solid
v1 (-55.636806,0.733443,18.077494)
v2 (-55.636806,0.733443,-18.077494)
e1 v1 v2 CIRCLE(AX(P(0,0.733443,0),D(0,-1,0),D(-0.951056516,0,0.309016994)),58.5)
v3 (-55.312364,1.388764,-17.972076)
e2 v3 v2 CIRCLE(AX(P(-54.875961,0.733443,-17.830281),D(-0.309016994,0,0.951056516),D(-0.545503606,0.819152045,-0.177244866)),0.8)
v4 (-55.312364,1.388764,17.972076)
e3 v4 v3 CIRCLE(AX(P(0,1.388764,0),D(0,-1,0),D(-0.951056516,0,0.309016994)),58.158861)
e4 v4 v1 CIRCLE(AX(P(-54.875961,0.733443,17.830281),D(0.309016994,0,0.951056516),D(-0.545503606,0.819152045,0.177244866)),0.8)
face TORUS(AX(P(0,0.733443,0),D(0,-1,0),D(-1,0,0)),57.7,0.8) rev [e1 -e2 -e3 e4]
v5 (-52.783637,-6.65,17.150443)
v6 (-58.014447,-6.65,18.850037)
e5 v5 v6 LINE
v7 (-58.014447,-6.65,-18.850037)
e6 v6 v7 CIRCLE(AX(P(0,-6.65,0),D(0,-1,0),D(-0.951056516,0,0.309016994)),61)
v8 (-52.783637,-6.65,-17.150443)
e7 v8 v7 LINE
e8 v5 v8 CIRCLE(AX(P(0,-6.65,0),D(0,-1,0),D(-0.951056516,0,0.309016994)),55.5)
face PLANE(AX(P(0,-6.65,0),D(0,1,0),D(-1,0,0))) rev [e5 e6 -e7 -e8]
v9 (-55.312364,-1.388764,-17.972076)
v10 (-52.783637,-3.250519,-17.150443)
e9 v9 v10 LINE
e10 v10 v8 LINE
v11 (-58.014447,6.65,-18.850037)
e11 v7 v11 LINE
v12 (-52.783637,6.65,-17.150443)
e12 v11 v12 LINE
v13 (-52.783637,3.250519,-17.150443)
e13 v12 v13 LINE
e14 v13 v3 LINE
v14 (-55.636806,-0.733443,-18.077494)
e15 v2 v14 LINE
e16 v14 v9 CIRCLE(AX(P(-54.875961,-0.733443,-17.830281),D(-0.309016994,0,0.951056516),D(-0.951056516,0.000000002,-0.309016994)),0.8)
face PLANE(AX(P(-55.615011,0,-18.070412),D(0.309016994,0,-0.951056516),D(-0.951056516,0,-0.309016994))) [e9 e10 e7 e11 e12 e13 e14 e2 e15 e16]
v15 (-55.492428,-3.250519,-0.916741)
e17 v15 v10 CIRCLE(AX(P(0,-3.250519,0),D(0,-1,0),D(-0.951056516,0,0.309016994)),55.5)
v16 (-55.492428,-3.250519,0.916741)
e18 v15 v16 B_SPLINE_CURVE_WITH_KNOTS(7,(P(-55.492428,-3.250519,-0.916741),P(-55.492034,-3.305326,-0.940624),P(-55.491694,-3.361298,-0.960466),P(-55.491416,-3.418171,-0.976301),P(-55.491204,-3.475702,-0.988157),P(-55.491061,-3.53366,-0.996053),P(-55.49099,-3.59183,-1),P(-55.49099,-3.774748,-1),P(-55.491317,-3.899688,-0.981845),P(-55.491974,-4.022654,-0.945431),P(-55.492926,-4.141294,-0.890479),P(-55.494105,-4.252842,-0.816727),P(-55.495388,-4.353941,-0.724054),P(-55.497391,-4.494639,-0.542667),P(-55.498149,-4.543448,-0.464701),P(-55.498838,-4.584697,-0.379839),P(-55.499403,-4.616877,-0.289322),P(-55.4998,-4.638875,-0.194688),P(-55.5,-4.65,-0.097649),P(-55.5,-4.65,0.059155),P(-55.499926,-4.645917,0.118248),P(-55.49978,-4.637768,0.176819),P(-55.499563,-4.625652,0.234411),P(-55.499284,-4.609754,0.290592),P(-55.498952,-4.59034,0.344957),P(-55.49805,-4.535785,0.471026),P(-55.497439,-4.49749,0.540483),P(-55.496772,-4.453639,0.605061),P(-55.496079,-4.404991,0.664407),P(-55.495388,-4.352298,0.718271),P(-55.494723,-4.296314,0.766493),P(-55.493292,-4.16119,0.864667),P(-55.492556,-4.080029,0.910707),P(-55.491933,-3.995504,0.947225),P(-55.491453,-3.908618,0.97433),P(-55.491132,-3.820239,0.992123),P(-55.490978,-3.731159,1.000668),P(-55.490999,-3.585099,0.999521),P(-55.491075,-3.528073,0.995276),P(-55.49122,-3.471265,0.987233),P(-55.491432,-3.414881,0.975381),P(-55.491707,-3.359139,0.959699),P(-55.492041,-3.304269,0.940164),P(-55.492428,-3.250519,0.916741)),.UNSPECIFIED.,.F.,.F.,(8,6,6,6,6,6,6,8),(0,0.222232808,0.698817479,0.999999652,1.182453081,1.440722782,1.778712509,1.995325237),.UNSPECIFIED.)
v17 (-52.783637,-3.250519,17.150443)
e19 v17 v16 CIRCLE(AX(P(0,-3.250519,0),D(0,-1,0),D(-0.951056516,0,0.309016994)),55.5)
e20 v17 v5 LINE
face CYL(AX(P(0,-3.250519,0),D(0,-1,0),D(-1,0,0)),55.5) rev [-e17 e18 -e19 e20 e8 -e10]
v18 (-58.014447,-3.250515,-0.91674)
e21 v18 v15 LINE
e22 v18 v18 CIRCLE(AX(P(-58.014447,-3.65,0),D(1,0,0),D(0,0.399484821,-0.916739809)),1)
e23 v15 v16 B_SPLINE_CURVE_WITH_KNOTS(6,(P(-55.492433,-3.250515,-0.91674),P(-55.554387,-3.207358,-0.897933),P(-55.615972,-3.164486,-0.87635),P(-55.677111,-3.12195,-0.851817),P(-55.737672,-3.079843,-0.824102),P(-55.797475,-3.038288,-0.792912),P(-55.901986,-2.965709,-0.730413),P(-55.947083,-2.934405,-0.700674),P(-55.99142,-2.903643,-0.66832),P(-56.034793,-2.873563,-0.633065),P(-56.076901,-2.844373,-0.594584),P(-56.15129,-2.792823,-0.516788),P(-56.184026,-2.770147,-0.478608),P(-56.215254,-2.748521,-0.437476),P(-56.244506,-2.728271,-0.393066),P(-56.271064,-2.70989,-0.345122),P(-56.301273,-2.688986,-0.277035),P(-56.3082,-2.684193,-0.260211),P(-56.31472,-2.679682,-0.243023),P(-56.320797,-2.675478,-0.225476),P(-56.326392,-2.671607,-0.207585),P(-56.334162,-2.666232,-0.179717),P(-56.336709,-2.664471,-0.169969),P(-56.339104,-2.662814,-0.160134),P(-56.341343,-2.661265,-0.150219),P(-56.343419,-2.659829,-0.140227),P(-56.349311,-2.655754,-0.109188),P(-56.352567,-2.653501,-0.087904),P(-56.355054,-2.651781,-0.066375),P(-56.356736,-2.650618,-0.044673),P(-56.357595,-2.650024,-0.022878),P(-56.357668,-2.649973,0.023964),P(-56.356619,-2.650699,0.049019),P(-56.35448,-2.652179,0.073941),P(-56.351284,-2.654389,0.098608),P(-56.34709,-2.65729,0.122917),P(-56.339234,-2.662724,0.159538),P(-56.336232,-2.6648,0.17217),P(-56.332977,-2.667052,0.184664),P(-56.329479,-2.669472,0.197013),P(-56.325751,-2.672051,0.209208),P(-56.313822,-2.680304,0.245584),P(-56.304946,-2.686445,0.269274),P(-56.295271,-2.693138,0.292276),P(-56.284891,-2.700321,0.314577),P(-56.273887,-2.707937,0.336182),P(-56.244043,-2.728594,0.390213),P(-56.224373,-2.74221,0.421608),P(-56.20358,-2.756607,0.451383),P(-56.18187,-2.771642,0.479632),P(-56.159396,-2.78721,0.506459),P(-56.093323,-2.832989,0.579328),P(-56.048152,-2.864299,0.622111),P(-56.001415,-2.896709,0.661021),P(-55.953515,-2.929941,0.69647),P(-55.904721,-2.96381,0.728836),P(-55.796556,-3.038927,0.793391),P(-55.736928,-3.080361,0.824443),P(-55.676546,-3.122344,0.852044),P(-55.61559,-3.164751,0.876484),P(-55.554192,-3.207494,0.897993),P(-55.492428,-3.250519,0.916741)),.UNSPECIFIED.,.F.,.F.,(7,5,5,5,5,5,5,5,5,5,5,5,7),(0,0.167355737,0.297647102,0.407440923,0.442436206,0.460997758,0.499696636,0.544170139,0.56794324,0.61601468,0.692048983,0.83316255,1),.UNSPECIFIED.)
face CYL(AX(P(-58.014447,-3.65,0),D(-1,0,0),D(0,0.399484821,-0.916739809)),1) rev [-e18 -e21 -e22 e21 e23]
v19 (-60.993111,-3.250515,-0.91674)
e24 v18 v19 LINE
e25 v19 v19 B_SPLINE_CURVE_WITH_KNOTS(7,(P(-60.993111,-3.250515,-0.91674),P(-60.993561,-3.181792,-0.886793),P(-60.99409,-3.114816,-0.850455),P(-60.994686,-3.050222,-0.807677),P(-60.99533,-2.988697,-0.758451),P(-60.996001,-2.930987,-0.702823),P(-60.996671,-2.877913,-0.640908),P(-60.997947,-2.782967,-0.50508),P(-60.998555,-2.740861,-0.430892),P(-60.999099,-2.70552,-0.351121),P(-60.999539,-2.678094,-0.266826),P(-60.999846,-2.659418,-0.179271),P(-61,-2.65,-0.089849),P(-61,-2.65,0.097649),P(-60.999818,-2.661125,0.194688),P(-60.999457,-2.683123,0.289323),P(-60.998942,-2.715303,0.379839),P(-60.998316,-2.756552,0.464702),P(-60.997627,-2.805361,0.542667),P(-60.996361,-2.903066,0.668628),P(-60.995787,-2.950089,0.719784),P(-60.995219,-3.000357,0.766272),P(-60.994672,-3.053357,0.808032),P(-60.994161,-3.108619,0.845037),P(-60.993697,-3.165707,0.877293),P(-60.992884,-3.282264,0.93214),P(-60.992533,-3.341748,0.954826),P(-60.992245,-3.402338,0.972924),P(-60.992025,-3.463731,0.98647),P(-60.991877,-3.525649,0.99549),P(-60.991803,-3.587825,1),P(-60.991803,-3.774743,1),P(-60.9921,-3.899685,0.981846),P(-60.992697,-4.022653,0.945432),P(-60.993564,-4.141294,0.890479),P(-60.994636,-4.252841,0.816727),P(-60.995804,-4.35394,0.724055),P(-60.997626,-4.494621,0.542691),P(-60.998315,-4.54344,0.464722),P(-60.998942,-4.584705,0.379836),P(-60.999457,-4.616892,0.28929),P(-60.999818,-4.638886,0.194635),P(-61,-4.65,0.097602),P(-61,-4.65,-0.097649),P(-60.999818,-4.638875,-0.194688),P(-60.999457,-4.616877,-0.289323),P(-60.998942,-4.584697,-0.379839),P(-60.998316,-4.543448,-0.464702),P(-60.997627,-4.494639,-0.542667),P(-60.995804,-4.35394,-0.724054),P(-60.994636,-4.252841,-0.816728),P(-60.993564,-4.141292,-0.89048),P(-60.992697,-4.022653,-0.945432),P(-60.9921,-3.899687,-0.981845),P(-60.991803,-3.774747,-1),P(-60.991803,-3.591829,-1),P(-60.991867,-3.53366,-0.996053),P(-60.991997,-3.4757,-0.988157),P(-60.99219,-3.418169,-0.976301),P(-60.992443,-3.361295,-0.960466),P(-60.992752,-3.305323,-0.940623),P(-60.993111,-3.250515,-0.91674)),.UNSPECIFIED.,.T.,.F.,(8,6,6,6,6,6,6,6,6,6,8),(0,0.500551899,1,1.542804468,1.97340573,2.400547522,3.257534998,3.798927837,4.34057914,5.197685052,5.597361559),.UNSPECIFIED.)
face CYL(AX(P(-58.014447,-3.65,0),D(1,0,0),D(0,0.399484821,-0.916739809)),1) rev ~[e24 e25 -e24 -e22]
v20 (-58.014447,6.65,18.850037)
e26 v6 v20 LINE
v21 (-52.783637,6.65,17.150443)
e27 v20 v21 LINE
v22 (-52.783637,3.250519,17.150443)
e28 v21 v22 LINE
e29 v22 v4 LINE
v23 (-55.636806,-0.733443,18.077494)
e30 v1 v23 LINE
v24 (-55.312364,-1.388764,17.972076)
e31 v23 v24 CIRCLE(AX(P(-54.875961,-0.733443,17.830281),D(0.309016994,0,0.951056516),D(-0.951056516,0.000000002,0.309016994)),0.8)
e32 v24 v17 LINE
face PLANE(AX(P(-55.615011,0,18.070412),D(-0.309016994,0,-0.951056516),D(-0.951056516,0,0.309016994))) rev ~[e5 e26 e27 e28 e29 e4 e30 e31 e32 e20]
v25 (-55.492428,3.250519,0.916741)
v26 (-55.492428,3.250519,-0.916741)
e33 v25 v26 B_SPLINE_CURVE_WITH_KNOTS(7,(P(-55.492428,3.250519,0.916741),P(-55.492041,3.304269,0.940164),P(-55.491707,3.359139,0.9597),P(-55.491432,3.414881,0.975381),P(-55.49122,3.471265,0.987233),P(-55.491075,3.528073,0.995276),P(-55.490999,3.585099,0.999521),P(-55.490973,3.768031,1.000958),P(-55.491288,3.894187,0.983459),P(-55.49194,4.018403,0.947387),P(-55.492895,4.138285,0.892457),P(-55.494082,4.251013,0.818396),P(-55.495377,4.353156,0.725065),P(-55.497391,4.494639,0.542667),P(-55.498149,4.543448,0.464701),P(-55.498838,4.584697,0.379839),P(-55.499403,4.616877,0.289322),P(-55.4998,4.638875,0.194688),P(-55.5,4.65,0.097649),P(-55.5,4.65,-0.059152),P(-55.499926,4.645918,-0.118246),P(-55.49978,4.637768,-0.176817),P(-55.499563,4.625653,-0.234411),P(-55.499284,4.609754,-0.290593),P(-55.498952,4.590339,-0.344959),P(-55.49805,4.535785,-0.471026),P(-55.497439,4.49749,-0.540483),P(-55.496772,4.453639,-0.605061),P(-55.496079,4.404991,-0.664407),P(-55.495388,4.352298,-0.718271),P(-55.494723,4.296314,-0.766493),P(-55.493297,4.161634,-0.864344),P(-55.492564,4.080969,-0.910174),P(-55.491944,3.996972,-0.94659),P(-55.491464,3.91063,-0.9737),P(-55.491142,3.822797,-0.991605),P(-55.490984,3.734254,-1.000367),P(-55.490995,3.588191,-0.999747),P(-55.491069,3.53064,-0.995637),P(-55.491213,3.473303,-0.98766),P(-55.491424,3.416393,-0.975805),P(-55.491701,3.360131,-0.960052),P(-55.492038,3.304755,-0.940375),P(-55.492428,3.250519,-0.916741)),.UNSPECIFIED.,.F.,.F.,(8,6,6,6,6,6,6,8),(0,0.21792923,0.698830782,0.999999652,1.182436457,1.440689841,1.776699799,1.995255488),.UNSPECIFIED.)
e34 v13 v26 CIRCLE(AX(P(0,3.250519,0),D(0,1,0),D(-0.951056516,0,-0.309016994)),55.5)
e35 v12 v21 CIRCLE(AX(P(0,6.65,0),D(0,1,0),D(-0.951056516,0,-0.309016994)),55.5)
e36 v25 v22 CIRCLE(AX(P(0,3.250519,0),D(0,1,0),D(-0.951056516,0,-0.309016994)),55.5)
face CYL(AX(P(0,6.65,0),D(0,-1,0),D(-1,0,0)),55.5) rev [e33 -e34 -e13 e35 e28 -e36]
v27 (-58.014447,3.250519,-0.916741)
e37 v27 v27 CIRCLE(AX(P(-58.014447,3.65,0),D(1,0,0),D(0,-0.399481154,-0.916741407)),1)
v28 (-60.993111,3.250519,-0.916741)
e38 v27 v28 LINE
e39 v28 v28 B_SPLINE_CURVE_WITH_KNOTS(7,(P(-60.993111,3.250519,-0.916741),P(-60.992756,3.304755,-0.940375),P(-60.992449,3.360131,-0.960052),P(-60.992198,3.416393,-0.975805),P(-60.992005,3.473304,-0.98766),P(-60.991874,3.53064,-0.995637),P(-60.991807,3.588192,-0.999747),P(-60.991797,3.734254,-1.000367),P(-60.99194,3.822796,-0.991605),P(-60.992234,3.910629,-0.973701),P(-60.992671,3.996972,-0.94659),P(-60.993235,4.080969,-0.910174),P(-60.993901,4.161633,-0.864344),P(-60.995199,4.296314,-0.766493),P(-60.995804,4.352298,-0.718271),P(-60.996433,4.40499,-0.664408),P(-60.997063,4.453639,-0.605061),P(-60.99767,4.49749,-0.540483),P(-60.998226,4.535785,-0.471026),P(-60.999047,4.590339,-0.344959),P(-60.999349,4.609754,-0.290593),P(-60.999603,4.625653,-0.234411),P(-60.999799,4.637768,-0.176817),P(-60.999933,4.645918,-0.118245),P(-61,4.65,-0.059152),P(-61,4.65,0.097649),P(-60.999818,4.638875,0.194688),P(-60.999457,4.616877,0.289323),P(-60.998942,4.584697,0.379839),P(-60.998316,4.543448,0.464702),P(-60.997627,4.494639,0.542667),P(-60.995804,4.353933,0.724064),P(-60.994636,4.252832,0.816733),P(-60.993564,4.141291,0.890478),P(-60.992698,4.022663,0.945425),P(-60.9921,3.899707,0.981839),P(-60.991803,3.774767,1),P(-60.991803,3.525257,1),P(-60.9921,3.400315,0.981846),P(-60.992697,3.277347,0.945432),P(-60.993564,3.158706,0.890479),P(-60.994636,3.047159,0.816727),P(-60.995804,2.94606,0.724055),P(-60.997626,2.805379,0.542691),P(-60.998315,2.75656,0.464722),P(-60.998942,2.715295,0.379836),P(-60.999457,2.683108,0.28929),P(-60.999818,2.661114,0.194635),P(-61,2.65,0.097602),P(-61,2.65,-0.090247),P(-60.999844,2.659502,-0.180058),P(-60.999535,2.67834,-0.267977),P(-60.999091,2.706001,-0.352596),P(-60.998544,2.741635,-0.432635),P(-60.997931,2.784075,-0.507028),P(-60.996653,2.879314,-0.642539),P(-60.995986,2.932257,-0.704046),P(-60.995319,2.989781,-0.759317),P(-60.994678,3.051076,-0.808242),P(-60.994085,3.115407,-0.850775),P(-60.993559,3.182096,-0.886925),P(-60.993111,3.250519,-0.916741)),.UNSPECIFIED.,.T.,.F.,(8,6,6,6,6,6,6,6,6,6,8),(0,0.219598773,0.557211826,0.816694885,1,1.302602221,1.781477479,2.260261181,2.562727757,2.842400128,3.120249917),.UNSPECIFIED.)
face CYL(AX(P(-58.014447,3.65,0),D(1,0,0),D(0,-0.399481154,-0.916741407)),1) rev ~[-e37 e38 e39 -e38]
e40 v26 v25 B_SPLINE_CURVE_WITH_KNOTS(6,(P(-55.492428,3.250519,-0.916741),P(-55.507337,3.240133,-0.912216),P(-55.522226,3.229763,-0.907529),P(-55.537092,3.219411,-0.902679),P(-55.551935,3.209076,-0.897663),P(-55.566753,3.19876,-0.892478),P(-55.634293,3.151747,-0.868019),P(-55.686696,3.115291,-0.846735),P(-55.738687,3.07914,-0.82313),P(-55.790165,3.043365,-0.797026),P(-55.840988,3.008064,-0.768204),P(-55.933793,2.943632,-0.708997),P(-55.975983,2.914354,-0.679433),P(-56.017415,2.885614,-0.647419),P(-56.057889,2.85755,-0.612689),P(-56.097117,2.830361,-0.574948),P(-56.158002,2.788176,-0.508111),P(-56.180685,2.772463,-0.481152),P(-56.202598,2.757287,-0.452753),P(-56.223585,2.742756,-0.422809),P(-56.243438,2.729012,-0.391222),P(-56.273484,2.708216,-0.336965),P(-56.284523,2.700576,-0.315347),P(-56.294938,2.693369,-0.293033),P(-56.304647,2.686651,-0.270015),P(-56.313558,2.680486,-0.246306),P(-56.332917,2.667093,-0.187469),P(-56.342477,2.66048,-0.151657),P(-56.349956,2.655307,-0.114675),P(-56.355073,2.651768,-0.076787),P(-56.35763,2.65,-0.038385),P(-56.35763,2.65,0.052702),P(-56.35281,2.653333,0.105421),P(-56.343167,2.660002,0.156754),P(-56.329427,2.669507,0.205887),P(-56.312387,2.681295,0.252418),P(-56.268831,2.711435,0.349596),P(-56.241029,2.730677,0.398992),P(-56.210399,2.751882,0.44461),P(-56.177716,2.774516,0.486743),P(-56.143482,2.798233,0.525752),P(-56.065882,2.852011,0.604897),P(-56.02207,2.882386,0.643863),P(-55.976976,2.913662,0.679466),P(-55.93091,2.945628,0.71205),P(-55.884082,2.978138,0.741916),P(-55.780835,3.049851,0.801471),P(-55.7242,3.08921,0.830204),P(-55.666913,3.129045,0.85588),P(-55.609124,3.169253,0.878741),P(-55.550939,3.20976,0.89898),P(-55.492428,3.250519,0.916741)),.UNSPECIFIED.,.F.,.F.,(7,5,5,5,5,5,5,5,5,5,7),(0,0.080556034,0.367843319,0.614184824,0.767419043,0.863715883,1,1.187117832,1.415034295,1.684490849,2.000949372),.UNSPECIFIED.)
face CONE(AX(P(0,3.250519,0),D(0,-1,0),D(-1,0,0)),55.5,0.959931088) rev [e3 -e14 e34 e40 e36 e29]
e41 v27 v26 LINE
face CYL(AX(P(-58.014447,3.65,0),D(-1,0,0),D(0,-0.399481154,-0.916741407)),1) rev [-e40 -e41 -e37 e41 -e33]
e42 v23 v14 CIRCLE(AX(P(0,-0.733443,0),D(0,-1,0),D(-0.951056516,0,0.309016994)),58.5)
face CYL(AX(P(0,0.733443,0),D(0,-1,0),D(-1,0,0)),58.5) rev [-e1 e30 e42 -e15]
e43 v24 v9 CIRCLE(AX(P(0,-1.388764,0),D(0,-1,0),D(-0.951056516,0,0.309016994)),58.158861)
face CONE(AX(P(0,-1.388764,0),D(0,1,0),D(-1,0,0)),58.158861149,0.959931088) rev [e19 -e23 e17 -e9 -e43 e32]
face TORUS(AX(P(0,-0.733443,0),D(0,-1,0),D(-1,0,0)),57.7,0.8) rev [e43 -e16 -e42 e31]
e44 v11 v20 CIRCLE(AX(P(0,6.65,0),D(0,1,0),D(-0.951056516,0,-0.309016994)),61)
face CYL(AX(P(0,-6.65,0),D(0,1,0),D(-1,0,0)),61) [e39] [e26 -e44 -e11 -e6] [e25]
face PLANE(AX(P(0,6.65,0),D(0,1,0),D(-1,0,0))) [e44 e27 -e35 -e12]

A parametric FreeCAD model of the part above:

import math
import FreeCAD as App
import Part
import Sketcher

V = App.Vector
Q = App.Units.Quantity

doc = App.newDocument("Part")
body = doc.addObject("PartDesign::Body", "Body")

# Sketch on XY plane
sketch1 = doc.addObject("Sketcher::SketchObject", "Sketch")
body.addObject(sketch1)
sketch1.AttachmentSupport = (doc.XY_Plane, [""])
sketch1.MapMode = "FlatFace"
sketch1.addGeometry([
    Part.LineSegment(V(-58.2, 1.4, 0), V(-55.5, 3.3, 0)),  # 0
    Part.LineSegment(V(-55.5, 3.3, 0), V(-55.5, 6.7, 0)),  # 1
    Part.LineSegment(V(-55.5, 6.7, 0), V(-61, 6.7, 0)),  # 2
    Part.LineSegment(V(-61, 6.7, 0), V(-61, -6.7, 0)),  # 3
    Part.LineSegment(V(-61, -6.7, 0), V(-55.5, -6.7, 0)),  # 4
    Part.LineSegment(V(-55.5, -6.7, 0), V(-55.5, -3.3, 0)),  # 5
    Part.LineSegment(V(-55.5, -3.3, 0), V(-58.2, -1.4, 0)),  # 6
    Part.ArcOfCircle(Part.Circle(V(-57.7, -0.7, 0), V(0, 0, 1), 0.8), math.radians(180), math.radians(235)),  # 7
    Part.LineSegment(V(-58.5, -0.7, 0), V(-58.5, 0.7, 0)),  # 8
    Part.ArcOfCircle(Part.Circle(V(-57.7, 0.7, 0), V(0, 0, 1), 0.8), math.radians(125), math.radians(180)),  # 9
], False)
sketch1.addConstraint([
    Sketcher.Constraint("Coincident", 0, 2, 1, 1),
    Sketcher.Constraint("Coincident", 1, 2, 2, 1),
    Sketcher.Constraint("Coincident", 2, 2, 3, 1),
    Sketcher.Constraint("Coincident", 3, 2, 4, 1),
    Sketcher.Constraint("Coincident", 4, 2, 5, 1),
    Sketcher.Constraint("Coincident", 5, 2, 6, 1),
    Sketcher.Constraint("Tangent", 6, 2, 7, 2),
    Sketcher.Constraint("Tangent", 7, 1, 8, 1),
    Sketcher.Constraint("Tangent", 8, 2, 9, 2),
    Sketcher.Constraint("Tangent", 9, 1, 0, 1),
    Sketcher.Constraint("Vertical", 1),
    Sketcher.Constraint("Horizontal", 2),
    Sketcher.Constraint("Vertical", 3),
    Sketcher.Constraint("Horizontal", 4),
    Sketcher.Constraint("Vertical", 5),
    Sketcher.Constraint("Vertical", 8),
    Sketcher.Constraint("Equal", 7, 9),
    Sketcher.Constraint("Symmetric", 1, 2, 4, 2, -1),
    Sketcher.Constraint("Symmetric", 6, 2, 9, 1, -1),
    Sketcher.Constraint("Radius", 7, 0.8),
    Sketcher.Constraint("Angle", 0, Q("35 deg")),
    Sketcher.Constraint("DistanceX", 2, 2, 2, 1, 5.5),
    Sketcher.Constraint("DistanceY", 3, 2, 3, 1, 13.3),
    Sketcher.Constraint("DistanceX", 2, 2, -1, 1, 61.0),
    Sketcher.Constraint("DistanceX", 7, 1, 5, 2, 3.0),
    Sketcher.Constraint("DistanceY", 1, 1, 1, 2, 3.399481),
])
revolution = doc.addObject("PartDesign::Revolution", "Revolution")
body.addObject(revolution)
revolution.Profile = sketch1
revolution.ReferenceAxis = (sketch1, ["V_Axis"])
revolution.Angle = 18
revolution.Reversed = True

# Sketch on XY plane
sketch2 = doc.addObject("Sketcher::SketchObject", "Sketch001")
body.addObject(sketch2)
sketch2.AttachmentSupport = (doc.XY_Plane, [""])
sketch2.MapMode = "FlatFace"
sketch2.addGeometry([
    Part.LineSegment(V(-58.2, 1.4, 0), V(-55.5, 3.3, 0)),  # 0
    Part.LineSegment(V(-55.5, 3.3, 0), V(-55.5, 6.7, 0)),  # 1
    Part.LineSegment(V(-55.5, 6.7, 0), V(-61, 6.7, 0)),  # 2
    Part.LineSegment(V(-61, 6.7, 0), V(-61, -6.7, 0)),  # 3
    Part.LineSegment(V(-61, -6.7, 0), V(-55.5, -6.7, 0)),  # 4
    Part.LineSegment(V(-55.5, -6.7, 0), V(-55.5, -3.3, 0)),  # 5
    Part.LineSegment(V(-55.5, -3.3, 0), V(-58.2, -1.4, 0)),  # 6
    Part.ArcOfCircle(Part.Circle(V(-57.7, -0.7, 0), V(0, 0, 1), 0.8), math.radians(180), math.radians(235)),  # 7
    Part.LineSegment(V(-58.5, -0.7, 0), V(-58.5, 0.7, 0)),  # 8
    Part.ArcOfCircle(Part.Circle(V(-57.7, 0.7, 0), V(0, 0, 1), 0.8), math.radians(125), math.radians(180)),  # 9
], False)
sketch2.addConstraint([
    Sketcher.Constraint("Coincident", 0, 2, 1, 1),
    Sketcher.Constraint("Coincident", 1, 2, 2, 1),
    Sketcher.Constraint("Coincident", 2, 2, 3, 1),
    Sketcher.Constraint("Coincident", 3, 2, 4, 1),
    Sketcher.Constraint("Coincident", 4, 2, 5, 1),
    Sketcher.Constraint("Coincident", 5, 2, 6, 1),
    Sketcher.Constraint("Tangent", 6, 2, 7, 2),
    Sketcher.Constraint("Tangent", 7, 1, 8, 1),
    Sketcher.Constraint("Tangent", 8, 2, 9, 2),
    Sketcher.Constraint("Tangent", 9, 1, 0, 1),
    Sketcher.Constraint("Vertical", 1),
    Sketcher.Constraint("Horizontal", 2),
    Sketcher.Constraint("Vertical", 3),
    Sketcher.Constraint("Horizontal", 4),
    Sketcher.Constraint("Vertical", 5),
    Sketcher.Constraint("Vertical", 8),
    Sketcher.Constraint("Equal", 7, 9),
    Sketcher.Constraint("Symmetric", 1, 2, 4, 2, -1),
    Sketcher.Constraint("Symmetric", 6, 2, 9, 1, -1),
    Sketcher.Constraint("Radius", 7, 0.8),
    Sketcher.Constraint("Angle", 0, Q("35 deg")),
    Sketcher.Constraint("DistanceX", 2, 2, 2, 1, 5.5),
    Sketcher.Constraint("DistanceY", 3, 2, 3, 1, 13.3),
    Sketcher.Constraint("DistanceX", 2, 2, -1, 1, 61.0),
    Sketcher.Constraint("DistanceX", 7, 1, 5, 2, 3.0),
    Sketcher.Constraint("DistanceY", 1, 1, 1, 2, 3.399481),
])
revolution2 = doc.addObject("PartDesign::Revolution", "Revolution001")
body.addObject(revolution2)
revolution2.Profile = sketch2
revolution2.ReferenceAxis = (sketch2, ["V_Axis"])
revolution2.Angle = 18

# Sketch on YZ plane
sketch3 = doc.addObject("Sketcher::SketchObject", "Sketch002")
body.addObject(sketch3)
sketch3.AttachmentSupport = (doc.YZ_Plane, [""])
sketch3.MapMode = "FlatFace"
sketch3.AttachmentOffset = App.Placement(V(0, 0, -58.014447), App.Rotation())
sketch3.addGeometry([
    Part.Circle(V(3.6, 0, 0), V(0, 0, 1), 1),
    Part.Circle(V(-3.6, 0, 0), V(0, 0, 1), 1),
], False)
sketch3.addConstraint([
    Sketcher.Constraint("Equal", 0, 1),
    Sketcher.Constraint("Symmetric", 0, 3, 1, 3, -1, 1),
    Sketcher.Constraint("PointOnObject", 0, 3, -1),
    Sketcher.Constraint("Diameter", 0, 2.0),
    Sketcher.Constraint("DistanceX", 1, 3, 0, 3, 7.3),
])
pocket1 = doc.addObject("PartDesign::Pocket", "Pocket")
body.addObject(pocket1)
pocket1.Profile = sketch3
pocket1.Type = "TwoLengths"
pocket1.Length = 3.4
pocket1.Length2 = 21.661746
pocket1.Reversed = True

doc.recompute()
